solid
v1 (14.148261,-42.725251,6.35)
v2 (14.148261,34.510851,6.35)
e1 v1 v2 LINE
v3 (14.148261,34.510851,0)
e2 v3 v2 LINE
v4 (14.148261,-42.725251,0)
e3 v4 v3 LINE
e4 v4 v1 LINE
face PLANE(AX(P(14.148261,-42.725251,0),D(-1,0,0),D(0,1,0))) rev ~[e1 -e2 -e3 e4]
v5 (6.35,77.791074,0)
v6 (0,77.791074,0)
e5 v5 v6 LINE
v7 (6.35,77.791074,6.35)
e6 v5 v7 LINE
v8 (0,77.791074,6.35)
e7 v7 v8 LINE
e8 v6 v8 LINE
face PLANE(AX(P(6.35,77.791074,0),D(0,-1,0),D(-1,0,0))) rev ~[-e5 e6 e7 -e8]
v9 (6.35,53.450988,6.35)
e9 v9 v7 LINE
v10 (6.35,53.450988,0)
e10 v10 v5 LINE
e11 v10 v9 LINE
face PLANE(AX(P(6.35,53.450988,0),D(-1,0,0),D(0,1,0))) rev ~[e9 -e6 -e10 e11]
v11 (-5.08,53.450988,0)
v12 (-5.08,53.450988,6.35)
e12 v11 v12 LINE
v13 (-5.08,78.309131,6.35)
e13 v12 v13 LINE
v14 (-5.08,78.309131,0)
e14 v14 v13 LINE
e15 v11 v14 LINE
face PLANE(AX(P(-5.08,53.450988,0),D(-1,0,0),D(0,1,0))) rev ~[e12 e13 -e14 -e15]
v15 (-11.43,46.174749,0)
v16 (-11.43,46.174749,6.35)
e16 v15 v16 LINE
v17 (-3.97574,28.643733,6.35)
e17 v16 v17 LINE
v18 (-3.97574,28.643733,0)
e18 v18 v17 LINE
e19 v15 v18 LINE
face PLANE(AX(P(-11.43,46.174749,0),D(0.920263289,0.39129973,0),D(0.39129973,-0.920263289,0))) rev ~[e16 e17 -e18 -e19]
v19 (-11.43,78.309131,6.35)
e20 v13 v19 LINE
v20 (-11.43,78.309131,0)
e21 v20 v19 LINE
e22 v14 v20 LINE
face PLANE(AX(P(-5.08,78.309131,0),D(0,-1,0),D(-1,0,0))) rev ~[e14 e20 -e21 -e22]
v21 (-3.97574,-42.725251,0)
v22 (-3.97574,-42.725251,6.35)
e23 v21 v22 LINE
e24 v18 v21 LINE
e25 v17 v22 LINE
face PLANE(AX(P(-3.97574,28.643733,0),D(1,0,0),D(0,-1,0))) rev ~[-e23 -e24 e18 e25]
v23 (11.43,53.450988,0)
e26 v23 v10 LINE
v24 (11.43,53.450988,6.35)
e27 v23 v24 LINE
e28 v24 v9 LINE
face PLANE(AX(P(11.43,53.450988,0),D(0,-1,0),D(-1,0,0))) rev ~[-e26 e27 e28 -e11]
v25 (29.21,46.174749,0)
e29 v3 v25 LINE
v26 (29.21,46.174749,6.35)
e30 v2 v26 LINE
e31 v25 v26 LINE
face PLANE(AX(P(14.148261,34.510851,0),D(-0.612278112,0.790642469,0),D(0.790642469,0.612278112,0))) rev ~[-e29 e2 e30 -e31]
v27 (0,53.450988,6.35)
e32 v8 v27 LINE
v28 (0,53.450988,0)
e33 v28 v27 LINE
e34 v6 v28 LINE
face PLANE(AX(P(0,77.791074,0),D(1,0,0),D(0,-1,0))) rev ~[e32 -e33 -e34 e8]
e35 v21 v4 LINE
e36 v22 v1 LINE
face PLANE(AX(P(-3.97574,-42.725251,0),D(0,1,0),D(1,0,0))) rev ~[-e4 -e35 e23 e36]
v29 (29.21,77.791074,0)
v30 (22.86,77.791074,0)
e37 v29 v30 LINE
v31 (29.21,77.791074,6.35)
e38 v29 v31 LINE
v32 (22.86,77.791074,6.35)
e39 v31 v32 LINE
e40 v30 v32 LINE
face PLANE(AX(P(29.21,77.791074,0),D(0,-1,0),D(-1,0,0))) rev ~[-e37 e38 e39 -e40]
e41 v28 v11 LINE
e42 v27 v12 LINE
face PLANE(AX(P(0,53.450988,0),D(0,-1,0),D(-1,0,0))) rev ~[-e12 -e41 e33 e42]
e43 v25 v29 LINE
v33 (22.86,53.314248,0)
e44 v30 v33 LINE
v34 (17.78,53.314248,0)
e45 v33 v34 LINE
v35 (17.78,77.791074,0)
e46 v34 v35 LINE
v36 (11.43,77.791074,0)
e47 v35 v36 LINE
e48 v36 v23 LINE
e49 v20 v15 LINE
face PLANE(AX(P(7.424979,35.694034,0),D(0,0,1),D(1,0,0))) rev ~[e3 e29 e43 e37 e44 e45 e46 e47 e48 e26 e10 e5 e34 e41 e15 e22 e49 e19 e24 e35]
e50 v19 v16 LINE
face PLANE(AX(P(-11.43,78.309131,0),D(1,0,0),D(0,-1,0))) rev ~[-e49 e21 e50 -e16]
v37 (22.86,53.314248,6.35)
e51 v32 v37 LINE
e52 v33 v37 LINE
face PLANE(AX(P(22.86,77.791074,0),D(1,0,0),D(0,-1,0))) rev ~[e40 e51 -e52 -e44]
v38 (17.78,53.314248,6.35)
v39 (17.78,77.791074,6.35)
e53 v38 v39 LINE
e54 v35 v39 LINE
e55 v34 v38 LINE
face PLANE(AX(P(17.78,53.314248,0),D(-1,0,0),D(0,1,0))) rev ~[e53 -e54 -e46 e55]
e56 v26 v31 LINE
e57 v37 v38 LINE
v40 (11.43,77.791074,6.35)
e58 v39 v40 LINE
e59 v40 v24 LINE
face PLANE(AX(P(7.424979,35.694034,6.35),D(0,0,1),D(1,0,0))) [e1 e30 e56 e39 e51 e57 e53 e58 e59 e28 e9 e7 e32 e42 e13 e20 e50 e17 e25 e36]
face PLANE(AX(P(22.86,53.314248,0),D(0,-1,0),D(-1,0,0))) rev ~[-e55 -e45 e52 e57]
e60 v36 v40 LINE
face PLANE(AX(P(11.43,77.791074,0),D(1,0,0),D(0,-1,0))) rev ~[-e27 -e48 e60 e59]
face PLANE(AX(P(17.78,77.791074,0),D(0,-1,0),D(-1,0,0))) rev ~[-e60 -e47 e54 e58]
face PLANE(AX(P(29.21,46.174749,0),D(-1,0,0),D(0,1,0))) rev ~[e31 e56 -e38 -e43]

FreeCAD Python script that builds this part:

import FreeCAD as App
import Part
import Sketcher
Q = App.Units.Quantity


def add_polygon(sketch, points):
    """Adds a closed chain of lines whose ends are joined by coincident constraints."""
    first, n = sketch.GeometryCount, len(points)
    for a, b in zip(points, points[1:] + points[:1]):
        sketch.addGeometry(Part.LineSegment(App.Vector(*a, 0), App.Vector(*b, 0)), False)
    for i in range(n):
        sketch.addConstraint(Sketcher.Constraint("Coincident", first + i, 2, first + (i + 1) % n, 1))

doc = App.newDocument("Part")
body = doc.addObject("PartDesign::Body", "Body")

# Sketch on XY plane
sketch1 = body.newObject("Sketcher::SketchObject", "Sketch")
sketch1.AttachmentSupport = (doc.getObject("XY_Plane"), [""])
sketch1.MapMode = "FlatFace"
add_polygon(sketch1, [(-4, 29), (-4, -43), (14, -43), (14, 35), (29, 46), (29, 78), (23, 78), (23, 53), (18, 53), (18, 78), (11, 78), (11, 53), (6, 53), (6, 78), (0, 78), (0, 53), (-5, 53), (-5, 78), (-11, 78), (-11, 46)])  # lines 0-19
sketch1.addConstraint([
    Sketcher.Constraint("Vertical", 0),
    Sketcher.Constraint("Horizontal", 1),
    Sketcher.Constraint("Vertical", 2),
    Sketcher.Constraint("Vertical", 4),
    Sketcher.Constraint("Horizontal", 5),
    Sketcher.Constraint("Vertical", 6),
    Sketcher.Constraint("Horizontal", 7),
    Sketcher.Constraint("Vertical", 8),
    Sketcher.Constraint("Horizontal", 9),
    Sketcher.Constraint("Vertical", 10),
    Sketcher.Constraint("Horizontal", 11),
    Sketcher.Constraint("Vertical", 12),
    Sketcher.Constraint("Horizontal", 13),
    Sketcher.Constraint("Vertical", 14),
    Sketcher.Constraint("Horizontal", 15),
    Sketcher.Constraint("Vertical", 16),
    Sketcher.Constraint("Horizontal", 17),
    Sketcher.Constraint("Vertical", 18),
    Sketcher.Constraint("PointOnObject", 13, 2, -2),
    Sketcher.Constraint("Horizontal", 5, 2, 8, 2),
    Sketcher.Constraint("Horizontal", 9, 2, 12, 2),
    Sketcher.Constraint("Horizontal", 11, 2, 14, 2),
    Sketcher.Constraint("Horizontal", 3, 2, 18, 2),
    Sketcher.Constraint("Equal", 5, 9),
    Sketcher.Constraint("Equal", 7, 11),
    Sketcher.Constraint("Equal", 9, 13),
    Sketcher.Constraint("Equal", 11, 15),
    Sketcher.Constraint("Equal", 13, 17),
    Sketcher.Constraint("Equal", 3, 19),
    Sketcher.Constraint("DistanceX", 7, 2, 7, 1, Q("0.2 in")),
    Sketcher.Constraint("DistanceX", 5, 2, 5, 1, Q("0.25 in")),
    Sketcher.Constraint("DistanceY", 1, 2, 3, 2, Q("3.5 in")),
    Sketcher.Constraint("Distance", 3, Q("0.75 in")),
    Sketcher.Constraint("DistanceX", 1, 1, 1, 2, 18.124001),
    Sketcher.Constraint("DistanceY", 18, 2, 18, 1, 32.134382),
    Sketcher.Constraint("DistanceY", 3, 2, 6, 2, 7.139499),
    Sketcher.Constraint("DistanceY", 0, 2, 0, 1, 71.368984),
    Sketcher.Constraint("DistanceY", 4, 1, 4, 2, 31.616325),
    Sketcher.Constraint("DistanceY", 10, 2, 10, 1, 24.340086),
    Sketcher.Constraint("DistanceY", 0, 2, -1, 1, 42.725251),
])
pad1 = body.newObject("PartDesign::Pad", "Pad")
pad1.Profile = sketch1
pad1.Length = Q("0.25 in")

doc.recompute()
